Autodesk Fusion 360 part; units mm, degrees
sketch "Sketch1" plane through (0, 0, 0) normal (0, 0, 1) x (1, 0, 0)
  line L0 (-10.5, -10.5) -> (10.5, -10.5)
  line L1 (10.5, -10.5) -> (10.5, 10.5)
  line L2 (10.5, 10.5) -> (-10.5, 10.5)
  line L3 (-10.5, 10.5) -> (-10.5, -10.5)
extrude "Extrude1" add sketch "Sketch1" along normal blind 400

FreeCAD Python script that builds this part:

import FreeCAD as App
import Part
import Sketcher
from FreeCAD import Vector
Q = App.Units.Quantity

doc = App.newDocument("Part")
body = doc.addObject("PartDesign::Body", "Body")

sketch1 = body.newObject("Sketcher::SketchObject", "Sketch")
sketch1.AttachmentSupport = (doc.getObject("XY_Plane"), [""])
sketch1.MapMode = "FlatFace"
sketch1.addGeometry([
    Part.LineSegment(Vector(-10, 10, 0), Vector(-10, -10, 0)),
    Part.LineSegment(Vector(-10, -10, 0), Vector(10, -10, 0)),
    Part.LineSegment(Vector(10, -10, 0), Vector(10, 10, 0)),
    Part.LineSegment(Vector(10, 10, 0), Vector(-10, 10, 0)),
], False)
sketch1.addConstraint([
    Sketcher.Constraint("Coincident", 0, 2, 1, 1),
    Sketcher.Constraint("Coincident", 1, 2, 2, 1),
    Sketcher.Constraint("Coincident", 2, 2, 3, 1),
    Sketcher.Constraint("Coincident", 3, 2, 0, 1),
    Sketcher.Constraint("Vertical", 0),
    Sketcher.Constraint("Horizontal", 1),
    Sketcher.Constraint("Vertical", 2),
    Sketcher.Constraint("Horizontal", 3),
    Sketcher.Constraint("Symmetric", 0, 2, 2, 2, -1, 1),
    Sketcher.Constraint("Equal", 3, 0),
    Sketcher.Constraint("DistanceX", 1, 1, 1, 2, Q("21 mm")),
])
pad1 = body.newObject("PartDesign::Pad", "Pad")
pad1.Profile = sketch1
pad1.Length = 400

doc.recompute()
